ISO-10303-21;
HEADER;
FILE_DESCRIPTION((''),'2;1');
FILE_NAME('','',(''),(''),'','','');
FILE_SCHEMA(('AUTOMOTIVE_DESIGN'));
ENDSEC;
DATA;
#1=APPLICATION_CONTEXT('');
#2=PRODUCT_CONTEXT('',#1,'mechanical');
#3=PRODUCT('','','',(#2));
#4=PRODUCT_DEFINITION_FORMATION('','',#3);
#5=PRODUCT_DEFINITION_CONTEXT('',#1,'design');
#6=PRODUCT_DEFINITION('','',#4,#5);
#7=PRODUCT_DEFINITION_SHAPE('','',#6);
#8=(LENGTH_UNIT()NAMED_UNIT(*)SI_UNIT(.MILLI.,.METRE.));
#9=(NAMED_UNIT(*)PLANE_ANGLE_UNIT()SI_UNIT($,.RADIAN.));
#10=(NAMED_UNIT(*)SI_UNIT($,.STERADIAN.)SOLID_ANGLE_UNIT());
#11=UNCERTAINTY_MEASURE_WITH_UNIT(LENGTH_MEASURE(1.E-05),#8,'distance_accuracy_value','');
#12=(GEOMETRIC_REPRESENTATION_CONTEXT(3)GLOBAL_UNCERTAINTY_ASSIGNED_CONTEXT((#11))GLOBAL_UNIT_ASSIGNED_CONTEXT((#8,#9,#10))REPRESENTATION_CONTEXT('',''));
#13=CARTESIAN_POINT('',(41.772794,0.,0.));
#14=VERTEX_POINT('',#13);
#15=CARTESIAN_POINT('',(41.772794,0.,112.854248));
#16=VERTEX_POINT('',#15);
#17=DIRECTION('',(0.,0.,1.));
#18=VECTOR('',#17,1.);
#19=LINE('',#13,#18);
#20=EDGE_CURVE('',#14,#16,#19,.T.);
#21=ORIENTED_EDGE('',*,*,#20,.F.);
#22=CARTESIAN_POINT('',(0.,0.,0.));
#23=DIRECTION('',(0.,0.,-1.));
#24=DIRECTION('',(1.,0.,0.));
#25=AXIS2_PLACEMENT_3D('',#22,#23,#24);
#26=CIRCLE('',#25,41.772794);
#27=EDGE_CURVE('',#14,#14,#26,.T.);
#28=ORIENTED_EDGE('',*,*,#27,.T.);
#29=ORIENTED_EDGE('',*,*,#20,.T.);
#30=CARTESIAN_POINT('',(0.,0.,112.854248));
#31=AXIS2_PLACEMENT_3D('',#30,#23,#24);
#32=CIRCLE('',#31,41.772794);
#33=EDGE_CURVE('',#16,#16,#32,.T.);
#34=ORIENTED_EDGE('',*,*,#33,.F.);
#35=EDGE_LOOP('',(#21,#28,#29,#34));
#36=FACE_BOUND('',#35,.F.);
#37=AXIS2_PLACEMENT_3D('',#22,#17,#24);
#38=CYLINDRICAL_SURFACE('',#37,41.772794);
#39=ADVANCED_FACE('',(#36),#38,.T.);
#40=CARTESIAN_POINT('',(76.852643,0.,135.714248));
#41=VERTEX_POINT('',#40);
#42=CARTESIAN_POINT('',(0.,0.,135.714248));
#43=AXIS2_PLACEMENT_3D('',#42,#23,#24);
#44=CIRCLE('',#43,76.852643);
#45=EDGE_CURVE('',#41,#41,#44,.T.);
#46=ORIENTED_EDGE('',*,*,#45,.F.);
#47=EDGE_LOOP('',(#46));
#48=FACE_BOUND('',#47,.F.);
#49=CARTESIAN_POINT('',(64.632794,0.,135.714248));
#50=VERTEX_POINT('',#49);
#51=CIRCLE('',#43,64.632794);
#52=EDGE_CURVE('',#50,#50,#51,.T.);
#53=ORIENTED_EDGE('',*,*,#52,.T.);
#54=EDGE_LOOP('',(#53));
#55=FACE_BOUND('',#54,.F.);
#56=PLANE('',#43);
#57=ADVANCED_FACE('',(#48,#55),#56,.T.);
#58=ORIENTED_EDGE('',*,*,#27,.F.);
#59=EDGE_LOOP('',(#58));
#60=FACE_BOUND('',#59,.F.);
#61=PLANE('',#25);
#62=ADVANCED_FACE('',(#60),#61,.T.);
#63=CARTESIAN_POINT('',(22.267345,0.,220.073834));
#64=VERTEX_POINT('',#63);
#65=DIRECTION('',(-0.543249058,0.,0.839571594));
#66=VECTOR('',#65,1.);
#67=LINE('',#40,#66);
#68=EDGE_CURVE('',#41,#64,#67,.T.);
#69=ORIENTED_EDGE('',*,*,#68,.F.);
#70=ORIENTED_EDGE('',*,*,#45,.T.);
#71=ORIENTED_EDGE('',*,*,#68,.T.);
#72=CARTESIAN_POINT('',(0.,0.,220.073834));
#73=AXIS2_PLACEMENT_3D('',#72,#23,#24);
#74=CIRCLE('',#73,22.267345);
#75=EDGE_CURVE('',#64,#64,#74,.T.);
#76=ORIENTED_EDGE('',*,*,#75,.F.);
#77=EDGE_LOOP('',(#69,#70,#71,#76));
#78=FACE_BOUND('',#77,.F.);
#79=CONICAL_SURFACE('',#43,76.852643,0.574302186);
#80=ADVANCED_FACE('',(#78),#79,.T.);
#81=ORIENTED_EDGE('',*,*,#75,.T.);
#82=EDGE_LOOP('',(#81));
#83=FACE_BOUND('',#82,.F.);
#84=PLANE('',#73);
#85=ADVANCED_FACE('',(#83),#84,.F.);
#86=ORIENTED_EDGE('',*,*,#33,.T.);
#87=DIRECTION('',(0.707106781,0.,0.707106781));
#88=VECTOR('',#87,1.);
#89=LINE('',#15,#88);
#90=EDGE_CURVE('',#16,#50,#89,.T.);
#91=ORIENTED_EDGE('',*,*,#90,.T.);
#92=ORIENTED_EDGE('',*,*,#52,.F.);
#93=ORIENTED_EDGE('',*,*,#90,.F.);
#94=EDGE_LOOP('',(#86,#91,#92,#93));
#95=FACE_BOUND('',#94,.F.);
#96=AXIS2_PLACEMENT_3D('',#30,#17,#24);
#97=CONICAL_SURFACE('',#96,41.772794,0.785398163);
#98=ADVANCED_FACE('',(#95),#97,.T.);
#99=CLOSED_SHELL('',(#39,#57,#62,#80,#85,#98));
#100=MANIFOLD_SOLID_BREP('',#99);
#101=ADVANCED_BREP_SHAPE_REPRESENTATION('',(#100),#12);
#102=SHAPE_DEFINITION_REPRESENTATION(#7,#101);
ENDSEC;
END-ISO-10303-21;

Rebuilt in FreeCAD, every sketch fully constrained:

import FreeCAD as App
import Part
import Sketcher

V = App.Vector
Q = App.Units.Quantity


def edges_at(feature, points):
    """Names of the edges that pass closest to the given points."""
    edges = feature.Shape.Edges
    near = lambda p: min(range(len(edges)), key=lambda i: edges[i].distToShape(Part.Vertex(*p))[0])
    return sorted({f"Edge{near(p) + 1}" for p in points})


def add_polygon(sketch, points):
    """Adds a closed chain of lines whose ends are joined by coincident constraints."""
    first, n = sketch.GeometryCount, len(points)
    for a, b in zip(points, points[1:] + points[:1]):
        sketch.addGeometry(Part.LineSegment(App.Vector(*a, 0), App.Vector(*b, 0)), False)
    for i in range(n):
        sketch.addConstraint(Sketcher.Constraint("Coincident", first + i, 2, first + (i + 1) % n, 1))

doc = App.newDocument("Part")
body = doc.addObject("PartDesign::Body", "Body")

# Sketch on XZ plane
sketch1 = body.newObject("Sketcher::SketchObject", "Sketch")
sketch1.AttachmentSupport = (doc.getObject("XZ_Plane"), [""])
sketch1.MapMode = "FlatFace"
add_polygon(sketch1, [(0, 0), (42, 0), (42, 136), (77, 136), (22, 220), (0, 220)])  # lines 0-5
sketch1.addConstraint([
    Sketcher.Constraint("Horizontal", 0),
    Sketcher.Constraint("Vertical", 1),
    Sketcher.Constraint("Horizontal", 2),
    Sketcher.Constraint("Horizontal", 4),
    Sketcher.Constraint("Vertical", 5),
    Sketcher.Constraint("Coincident", 5, 2, -1, 1),
    Sketcher.Constraint("DistanceX", 2, 1, 2, 2, 35.079849),
    Sketcher.Constraint("DistanceY", 1, 1, 1, 2, 135.714248),
    Sketcher.Constraint("DistanceX", 3, 2, 2, 2, 54.585298),
    Sketcher.Constraint("DistanceX", 0, 1, 0, 2, 41.772794),
    Sketcher.Constraint("DistanceY", 5, 2, 5, 1, 220.073834),
])
revolution = body.newObject("PartDesign::Revolution", "Revolution")
revolution.Profile = sketch1
revolution.ReferenceAxis = (sketch1, ["V_Axis"])
revolution.Angle = 360
doc.recompute()

chamfer = body.newObject("PartDesign::Chamfer", "Chamfer")
chamfer.Base = (revolution, edges_at(revolution, [(-41.773, 0, 135.714)]))
chamfer.Size = Q("0.9 in")

doc.recompute()
